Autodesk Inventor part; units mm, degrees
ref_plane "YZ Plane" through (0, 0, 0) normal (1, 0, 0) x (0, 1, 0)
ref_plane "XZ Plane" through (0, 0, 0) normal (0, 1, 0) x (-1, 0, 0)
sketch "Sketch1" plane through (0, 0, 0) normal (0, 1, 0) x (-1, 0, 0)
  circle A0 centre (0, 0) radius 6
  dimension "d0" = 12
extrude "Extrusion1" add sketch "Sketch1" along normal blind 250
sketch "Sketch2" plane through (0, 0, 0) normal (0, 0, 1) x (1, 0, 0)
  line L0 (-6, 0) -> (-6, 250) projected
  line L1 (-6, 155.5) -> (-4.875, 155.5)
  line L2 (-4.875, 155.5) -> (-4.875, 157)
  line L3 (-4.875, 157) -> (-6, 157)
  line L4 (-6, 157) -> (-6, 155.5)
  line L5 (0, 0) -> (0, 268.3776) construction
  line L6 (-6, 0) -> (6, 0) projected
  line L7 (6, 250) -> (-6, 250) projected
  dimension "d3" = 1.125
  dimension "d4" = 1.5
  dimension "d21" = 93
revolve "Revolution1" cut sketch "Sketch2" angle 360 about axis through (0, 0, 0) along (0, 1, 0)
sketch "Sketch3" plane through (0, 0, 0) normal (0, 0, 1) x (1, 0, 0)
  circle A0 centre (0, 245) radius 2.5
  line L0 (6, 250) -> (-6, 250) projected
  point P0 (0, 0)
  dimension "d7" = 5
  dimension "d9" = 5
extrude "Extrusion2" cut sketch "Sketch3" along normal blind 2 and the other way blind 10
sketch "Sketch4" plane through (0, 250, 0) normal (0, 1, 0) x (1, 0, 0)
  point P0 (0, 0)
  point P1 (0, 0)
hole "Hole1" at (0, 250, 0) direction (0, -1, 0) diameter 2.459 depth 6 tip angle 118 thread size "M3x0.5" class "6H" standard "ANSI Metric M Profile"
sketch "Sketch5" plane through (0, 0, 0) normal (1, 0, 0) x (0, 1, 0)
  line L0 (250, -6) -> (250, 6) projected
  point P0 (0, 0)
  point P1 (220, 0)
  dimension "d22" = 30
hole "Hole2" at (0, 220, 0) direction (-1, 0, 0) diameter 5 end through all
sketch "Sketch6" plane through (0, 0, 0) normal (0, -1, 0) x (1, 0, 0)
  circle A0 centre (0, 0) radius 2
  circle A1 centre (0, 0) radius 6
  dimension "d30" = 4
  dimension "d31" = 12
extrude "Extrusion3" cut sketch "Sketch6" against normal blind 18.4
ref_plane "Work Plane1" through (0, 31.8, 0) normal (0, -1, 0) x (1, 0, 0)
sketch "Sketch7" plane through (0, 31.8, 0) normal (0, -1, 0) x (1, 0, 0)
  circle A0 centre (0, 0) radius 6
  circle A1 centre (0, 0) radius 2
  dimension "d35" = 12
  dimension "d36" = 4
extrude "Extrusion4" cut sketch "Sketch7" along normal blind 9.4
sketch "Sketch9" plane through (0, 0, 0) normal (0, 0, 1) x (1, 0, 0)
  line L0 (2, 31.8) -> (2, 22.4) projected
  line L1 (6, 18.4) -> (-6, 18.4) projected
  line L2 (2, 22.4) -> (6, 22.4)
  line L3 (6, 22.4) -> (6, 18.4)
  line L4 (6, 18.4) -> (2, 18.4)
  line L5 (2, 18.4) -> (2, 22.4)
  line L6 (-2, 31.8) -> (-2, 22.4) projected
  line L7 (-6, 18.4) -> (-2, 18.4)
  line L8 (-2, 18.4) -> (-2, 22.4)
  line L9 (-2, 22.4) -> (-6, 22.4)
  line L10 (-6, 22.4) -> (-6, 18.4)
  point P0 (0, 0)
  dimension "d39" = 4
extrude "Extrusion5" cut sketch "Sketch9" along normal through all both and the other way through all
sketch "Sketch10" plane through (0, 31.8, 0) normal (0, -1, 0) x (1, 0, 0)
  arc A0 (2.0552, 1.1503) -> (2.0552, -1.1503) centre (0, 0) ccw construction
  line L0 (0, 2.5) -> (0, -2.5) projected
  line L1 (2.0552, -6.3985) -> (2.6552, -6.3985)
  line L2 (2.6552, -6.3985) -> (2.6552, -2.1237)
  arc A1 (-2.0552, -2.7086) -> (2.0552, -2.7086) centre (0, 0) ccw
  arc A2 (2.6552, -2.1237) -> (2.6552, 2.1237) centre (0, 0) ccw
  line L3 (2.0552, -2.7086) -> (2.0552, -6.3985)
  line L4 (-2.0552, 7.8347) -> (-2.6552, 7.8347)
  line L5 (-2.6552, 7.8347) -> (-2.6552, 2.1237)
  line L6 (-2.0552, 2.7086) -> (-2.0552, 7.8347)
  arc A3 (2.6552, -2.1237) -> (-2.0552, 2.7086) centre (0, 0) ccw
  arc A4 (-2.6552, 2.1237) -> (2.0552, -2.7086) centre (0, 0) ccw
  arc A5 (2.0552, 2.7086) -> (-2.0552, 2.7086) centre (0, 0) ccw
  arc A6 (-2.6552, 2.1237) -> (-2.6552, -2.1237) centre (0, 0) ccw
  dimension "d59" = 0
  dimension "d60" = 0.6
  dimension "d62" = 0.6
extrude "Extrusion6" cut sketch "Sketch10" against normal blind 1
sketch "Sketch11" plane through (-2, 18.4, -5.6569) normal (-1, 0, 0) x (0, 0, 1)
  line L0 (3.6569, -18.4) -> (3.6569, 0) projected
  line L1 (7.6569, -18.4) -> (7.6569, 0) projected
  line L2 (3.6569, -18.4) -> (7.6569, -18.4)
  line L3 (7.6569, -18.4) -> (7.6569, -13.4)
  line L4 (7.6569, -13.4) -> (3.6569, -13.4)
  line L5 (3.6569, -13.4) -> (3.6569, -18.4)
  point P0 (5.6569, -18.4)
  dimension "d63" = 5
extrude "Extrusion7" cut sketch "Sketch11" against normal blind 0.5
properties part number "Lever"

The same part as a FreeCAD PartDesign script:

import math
import FreeCAD as App
import Part
import Sketcher
from FreeCAD import Vector
Q = App.Units.Quantity


def add_polygon(sketch, points):
    """Adds a closed chain of lines whose ends are joined by coincident constraints."""
    first, n = sketch.GeometryCount, len(points)
    for a, b in zip(points, points[1:] + points[:1]):
        sketch.addGeometry(Part.LineSegment(App.Vector(*a, 0), App.Vector(*b, 0)), False)
    for i in range(n):
        sketch.addConstraint(Sketcher.Constraint("Coincident", first + i, 2, first + (i + 1) % n, 1))

doc = App.newDocument("Part")
params = doc.addObject("Spreadsheet::Sheet", "Params")
for row, (alias, value) in enumerate([
    ("sketch1_diameter", "12 mm"),
    ("pad1_length", "250 mm"),
    ("sketch2_height", "1.5 mm"),
    ("groove_angle", "360 deg"),
    ("sketch3_diameter", "5 mm"),
    ("pocket1_length", "2 mm"),
    ("pocket1_length2", "10 mm"),
    ("hole_diameter", "2.459 mm"),
    ("hole_depth", "6 mm"),
    ("sketch5_diameter", "5 mm"),
    ("hole2_diameter", "5 mm"),
    ("sketch6_diameter", "12 mm"),
    ("sketch6_diameter2", "4 mm"),
    ("pocket2_length", "18.4 mm"),
    ("sketch7_diameter", "12 mm"),
    ("sketch7_diameter2", "4 mm"),
    ("pocket3_length", "9.4 mm"),
    ("sketch8_width", "4 mm"),
    ("sketch9_width", "0.6 mm"),
    ("sketch9_radius", "3.4 mm"),
    ("sketch9_height", "3.69 mm"),
    ("pocket5_length", "1 mm"),
    ("sketch10_width", "5 mm"),
    ("sketch10_height", "4 mm"),
    ("pocket6_length", "0.5 mm"),
], start=1):
    params.set(f"A{row}", alias)
    params.set(f"B{row}", "=" + value)
    params.setAlias(f"B{row}", alias)

body = doc.addObject("PartDesign::Body", "Body")
body.AllowCompound = True

sketch1 = body.newObject("Sketcher::SketchObject", "Sketch")
sketch1.AttachmentSupport = (doc.getObject("XZ_Plane"), [""])
sketch1.MapMode = "FlatFace"
sketch1.addGeometry(Part.Circle(Vector(0, 0, 0), Vector(0, 0, 1), 6), False)
sketch1.addConstraint([
    Sketcher.Constraint("Coincident", 0, 3, -1, 1),
    Sketcher.Constraint("Diameter", 0, Q("12 mm")),
])
sketch1.setExpression("Constraints[1]", "Params.sketch1_diameter")
pad1 = body.newObject("PartDesign::Pad", "Pad")
pad1.Profile = sketch1
pad1.setExpression("Length", "Params.pad1_length")
pad1.Reversed = True

sketch2 = body.newObject("Sketcher::SketchObject", "Sketch001")
sketch2.AttachmentSupport = (doc.getObject("XY_Plane"), [""])
sketch2.MapMode = "FlatFace"
add_polygon(sketch2, [(-6, 157), (-6, 155.5), (-4.9, 155.5), (-4.9, 157)])
sketch2.addConstraint([
    Sketcher.Constraint("Vertical", 0),
    Sketcher.Constraint("Horizontal", 1),
    Sketcher.Constraint("Vertical", 2),
    Sketcher.Constraint("Horizontal", 3),
    Sketcher.Constraint("DistanceY", 0, 2, 0, 1, Q("1.5 mm")),
    Sketcher.Constraint("DistanceX", 1, 1, 1, 2, Q("1.125 mm")),
    Sketcher.Constraint("DistanceX", 0, 2, -1, 1, Q("6 mm")),
    Sketcher.Constraint("DistanceY", -1, 1, 2, 2, Q("157 mm")),
])
sketch2.setExpression("Constraints[8]", "Params.sketch2_height")
groove = body.newObject("PartDesign::Groove", "Groove")
groove.Profile = sketch2
groove.ReferenceAxis = (sketch2, ["V_Axis"])
groove.setExpression("Angle", "Params.groove_angle")

sketch3 = body.newObject("Sketcher::SketchObject", "Sketch002")
sketch3.AttachmentSupport = (doc.getObject("XY_Plane"), [""])
sketch3.MapMode = "FlatFace"
sketch3.addGeometry(Part.Circle(Vector(0, 245, 0), Vector(0, 0, 1), 2.5), False)
sketch3.addConstraint([
    Sketcher.Constraint("PointOnObject", 0, 3, -2),
    Sketcher.Constraint("Diameter", 0, Q("5 mm")),
    Sketcher.Constraint("DistanceY", -1, 1, 0, 3, Q("245 mm")),
])
sketch3.setExpression("Constraints[1]", "Params.sketch3_diameter")
pocket1 = body.newObject("PartDesign::Pocket", "Pocket")
pocket1.Profile = sketch3
pocket1.Type = "TwoLengths"
pocket1.setExpression("Length", "Params.pocket1_length")
pocket1.setExpression("Length2", "Params.pocket1_length2")
pocket1.Reversed = True

sketch4 = body.newObject("Sketcher::SketchObject", "Sketch003")
sketch4.AttachmentSupport = (doc.getObject("XZ_Plane"), [""])
sketch4.MapMode = "FlatFace"
sketch4.AttachmentOffset = App.Placement(Vector(0, 0, -250), App.Rotation())
sketch4.addGeometry(Part.Circle(Vector(0, 0, 0), Vector(0, 0, 1), 1.2), False)
sketch4.addConstraint([
    Sketcher.Constraint("Coincident", 0, 3, -1, 1),
    Sketcher.Constraint("Diameter", 0, Q("2.459 mm")),
])
doc.recompute()
hole = body.newObject("PartDesign::Hole", "Hole")
hole.Profile = sketch4
hole.ThreadType = "None"
hole.setExpression("Diameter", "Params.hole_diameter")
hole.DepthType = "Dimension"
hole.setExpression("Depth", "Params.hole_depth")
hole.DrillPoint = "Angled"
hole.DrillPointAngle = 118
hole.Reversed = True

sketch5 = body.newObject("Sketcher::SketchObject", "Sketch004")
sketch5.AttachmentSupport = (doc.getObject("YZ_Plane"), [""])
sketch5.MapMode = "FlatFace"
sketch5.addGeometry(Part.Circle(Vector(220, 0, 0), Vector(0, 0, 1), 2.5), False)
sketch5.addConstraint([
    Sketcher.Constraint("PointOnObject", 0, 3, -1),
    Sketcher.Constraint("Diameter", 0, Q("5 mm")),
    Sketcher.Constraint("DistanceX", -1, 1, 0, 3, Q("220 mm")),
])
sketch5.setExpression("Constraints[1]", "Params.sketch5_diameter")
doc.recompute()
hole2 = body.newObject("PartDesign::Hole", "Hole001")
hole2.Profile = sketch5
hole2.ThreadType = "None"
hole2.setExpression("Diameter", "Params.hole2_diameter")
hole2.DepthType = "ThroughAll"

sketch6 = body.newObject("Sketcher::SketchObject", "Sketch005")
sketch6.AttachmentSupport = (doc.getObject("XZ_Plane"), [""])
sketch6.MapMode = "FlatFace"
sketch6.addGeometry([
    Part.Circle(Vector(0, 0, 0), Vector(0, 0, 1), 6),
    Part.Circle(Vector(0, 0, 0), Vector(0, 0, 1), 2),
], False)
sketch6.addConstraint([
    Sketcher.Constraint("Coincident", 0, 3, -1, 1),
    Sketcher.Constraint("Coincident", 1, 3, -1, 1),
    Sketcher.Constraint("Diameter", 0, Q("12 mm")),
    Sketcher.Constraint("Diameter", 1, Q("4 mm")),
])
sketch6.setExpression("Constraints[2]", "Params.sketch6_diameter")
sketch6.setExpression("Constraints[3]", "Params.sketch6_diameter2")
pocket2 = body.newObject("PartDesign::Pocket", "Pocket001")
pocket2.Profile = sketch6
pocket2.setExpression("Length", "Params.pocket2_length")

sketch7 = body.newObject("Sketcher::SketchObject", "Sketch006")
sketch7.AttachmentSupport = (doc.getObject("XZ_Plane"), [""])
sketch7.MapMode = "FlatFace"
sketch7.AttachmentOffset = App.Placement(Vector(0, 0, -31.8), App.Rotation())
sketch7.addGeometry([
    Part.Circle(Vector(0, 0, 0), Vector(0, 0, 1), 6),
    Part.Circle(Vector(0, 0, 0), Vector(0, 0, 1), 2),
], False)
sketch7.addConstraint([
    Sketcher.Constraint("Coincident", 0, 3, -1, 1),
    Sketcher.Constraint("Coincident", 1, 3, -1, 1),
    Sketcher.Constraint("Diameter", 0, Q("12 mm")),
    Sketcher.Constraint("Diameter", 1, Q("4 mm")),
])
sketch7.setExpression("Constraints[2]", "Params.sketch7_diameter")
sketch7.setExpression("Constraints[3]", "Params.sketch7_diameter2")
pocket3 = body.newObject("PartDesign::Pocket", "Pocket002")
pocket3.Profile = sketch7
pocket3.setExpression("Length", "Params.pocket3_length")
pocket3.Reversed = True

sketch8 = body.newObject("Sketcher::SketchObject", "Sketch007")
sketch8.AttachmentSupport = (doc.getObject("XY_Plane"), [""])
sketch8.MapMode = "FlatFace"
add_polygon(sketch8, [(-6, 18.4), (-2, 18.4), (-2, 22.4), (-6, 22.4)])
add_polygon(sketch8, [(2, 18.4), (6, 18.4), (6, 22.4), (2, 22.4)])
sketch8.addConstraint([
    Sketcher.Constraint("Horizontal", 0),
    Sketcher.Constraint("Vertical", 1),
    Sketcher.Constraint("Horizontal", 2),
    Sketcher.Constraint("Vertical", 3),
    Sketcher.Constraint("Horizontal", 4),
    Sketcher.Constraint("Vertical", 5),
    Sketcher.Constraint("Horizontal", 6),
    Sketcher.Constraint("Vertical", 7),
    Sketcher.Constraint("Symmetric", 3, 2, 4, 2, -2),
    Sketcher.Constraint("Symmetric", 1, 2, 6, 2, -2),
    Sketcher.Constraint("Equal", 6, 1),
    Sketcher.Constraint("DistanceX", 0, 1, 0, 2, Q("4 mm")),
    Sketcher.Constraint("DistanceX", 1, 2, 6, 2, Q("4 mm")),
    Sketcher.Constraint("DistanceY", -1, 1, 0, 2, Q("18.4 mm")),
])
sketch8.setExpression("Constraints[19]", "Params.sketch8_width")
pocket4 = body.newObject("PartDesign::Pocket", "Pocket003")
pocket4.Profile = sketch8
pocket4.Type = "ThroughAll"
pocket4.Midplane = True

sketch9 = body.newObject("Sketcher::SketchObject", "Sketch008")
sketch9.AttachmentSupport = (doc.getObject("XZ_Plane"), [""])
sketch9.MapMode = "FlatFace"
sketch9.AttachmentOffset = App.Placement(Vector(0, 0, -31.8), App.Rotation())
sketch9.addGeometry([
    Part.LineSegment(Vector(2.1, -2.7, 0), Vector(2.1, -6.4, 0)),
    Part.LineSegment(Vector(2.1, -6.4, 0), Vector(2.7, -6.4, 0)),
    Part.LineSegment(Vector(2.7, -6.4, 0), Vector(2.7, -2.1, 0)),
    Part.ArcOfCircle(Part.Circle(Vector(0, 0, 0), Vector(0, 0, 1), 3.4), math.radians(-39), math.radians(39)),
    Part.ArcOfCircle(Part.Circle(Vector(0, 0, 0), Vector(0, 0, 1), 3.4), math.radians(39), math.radians(127)),
    Part.LineSegment(Vector(-2.1, 2.7, 0), Vector(-2.1, 7.8, 0)),
    Part.LineSegment(Vector(-2.1, 7.8, 0), Vector(-2.7, 7.8, 0)),
    Part.LineSegment(Vector(-2.7, 7.8, 0), Vector(-2.7, 2.1, 0)),
    Part.ArcOfCircle(Part.Circle(Vector(0, 0, 0), Vector(0, 0, 1), 3.4), math.radians(141), math.radians(233)),
    Part.ArcOfCircle(Part.Circle(Vector(0, 0, 0), Vector(0, 0, 1), 3.4), math.radians(-127), math.radians(-53)),
], False)
sketch9.addConstraint([
    Sketcher.Constraint("Coincident", 0, 2, 1, 1),
    Sketcher.Constraint("Coincident", 1, 2, 2, 1),
    Sketcher.Constraint("Coincident", 2, 2, 3, 1),
    Sketcher.Constraint("Tangent", 3, 2, 4, 1),
    Sketcher.Constraint("Coincident", 4, 2, 5, 1),
    Sketcher.Constraint("Coincident", 5, 2, 6, 1),
    Sketcher.Constraint("Coincident", 6, 2, 7, 1),
    Sketcher.Constraint("Coincident", 7, 2, 8, 1),
    Sketcher.Constraint("Tangent", 8, 2, 9, 1),
    Sketcher.Constraint("Coincident", 9, 2, 0, 1),
    Sketcher.Constraint("Vertical", 0),
    Sketcher.Constraint("Horizontal", 1),
    Sketcher.Constraint("Vertical", 2),
    Sketcher.Constraint("Vertical", 5),
    Sketcher.Constraint("Horizontal", 6),
    Sketcher.Constraint("Vertical", 7),
    Sketcher.Constraint("Coincident", 3, 3, -1, 1),
    Sketcher.Constraint("Coincident", 8, 3, -1, 1),
    Sketcher.Constraint("Equal", 3, 4),
    Sketcher.Constraint("Equal", 4, 8),
    Sketcher.Constraint("Equal", 8, 9),
    Sketcher.Constraint("Horizontal", 3, 2, 7, 2),
    Sketcher.Constraint("Horizontal", 8, 2, 9, 2),
    Sketcher.Constraint("Vertical", 2, 2, 3, 2),
    Sketcher.Constraint("Vertical", 5, 2, 8, 2),
    Sketcher.Constraint("DistanceX", 1, 1, 1, 2, Q("0.6 mm")),
    Sketcher.Constraint("Radius", 3, Q("3.4 mm")),
    Sketcher.Constraint("DistanceY", 0, 2, 0, 1, Q("3.69 mm")),
    Sketcher.Constraint("DistanceY", 5, 1, 5, 2, Q("5.126 mm")),
    Sketcher.Constraint("DistanceY", 7, 2, 7, 1, Q("5.711 mm")),
])
sketch9.setExpression("Constraints[25]", "Params.sketch9_width")
sketch9.setExpression("Constraints[26]", "Params.sketch9_radius")
sketch9.setExpression("Constraints[27]", "Params.sketch9_height")
pocket5 = body.newObject("PartDesign::Pocket", "Pocket004")
pocket5.Profile = sketch9
pocket5.setExpression("Length", "Params.pocket5_length")

sketch10 = body.newObject("Sketcher::SketchObject", "Sketch009")
sketch10.AttachmentSupport = (doc.getObject("YZ_Plane"), [""])
sketch10.MapMode = "FlatFace"
sketch10.AttachmentOffset = App.Placement(Vector(0, 0, -2), App.Rotation())
add_polygon(sketch10, [(5, -2), (0, -2), (0, 2), (5, 2)])
sketch10.addConstraint([
    Sketcher.Constraint("Horizontal", 0),
    Sketcher.Constraint("Vertical", 1),
    Sketcher.Constraint("Horizontal", 2),
    Sketcher.Constraint("Vertical", 3),
    Sketcher.Constraint("Symmetric", 0, 2, 1, 2, -1, 1),
    Sketcher.Constraint("DistanceX", 0, 2, 0, 1, Q("5 mm")),
    Sketcher.Constraint("DistanceY", 1, 1, 1, 2, Q("4 mm")),
])
sketch10.setExpression("Constraints[9]", "Params.sketch10_width")
sketch10.setExpression("Constraints[10]", "Params.sketch10_height")
pocket6 = body.newObject("PartDesign::Pocket", "Pocket005")
pocket6.Profile = sketch10
pocket6.setExpression("Length", "Params.pocket6_length")
pocket6.Reversed = True

doc.recompute()
